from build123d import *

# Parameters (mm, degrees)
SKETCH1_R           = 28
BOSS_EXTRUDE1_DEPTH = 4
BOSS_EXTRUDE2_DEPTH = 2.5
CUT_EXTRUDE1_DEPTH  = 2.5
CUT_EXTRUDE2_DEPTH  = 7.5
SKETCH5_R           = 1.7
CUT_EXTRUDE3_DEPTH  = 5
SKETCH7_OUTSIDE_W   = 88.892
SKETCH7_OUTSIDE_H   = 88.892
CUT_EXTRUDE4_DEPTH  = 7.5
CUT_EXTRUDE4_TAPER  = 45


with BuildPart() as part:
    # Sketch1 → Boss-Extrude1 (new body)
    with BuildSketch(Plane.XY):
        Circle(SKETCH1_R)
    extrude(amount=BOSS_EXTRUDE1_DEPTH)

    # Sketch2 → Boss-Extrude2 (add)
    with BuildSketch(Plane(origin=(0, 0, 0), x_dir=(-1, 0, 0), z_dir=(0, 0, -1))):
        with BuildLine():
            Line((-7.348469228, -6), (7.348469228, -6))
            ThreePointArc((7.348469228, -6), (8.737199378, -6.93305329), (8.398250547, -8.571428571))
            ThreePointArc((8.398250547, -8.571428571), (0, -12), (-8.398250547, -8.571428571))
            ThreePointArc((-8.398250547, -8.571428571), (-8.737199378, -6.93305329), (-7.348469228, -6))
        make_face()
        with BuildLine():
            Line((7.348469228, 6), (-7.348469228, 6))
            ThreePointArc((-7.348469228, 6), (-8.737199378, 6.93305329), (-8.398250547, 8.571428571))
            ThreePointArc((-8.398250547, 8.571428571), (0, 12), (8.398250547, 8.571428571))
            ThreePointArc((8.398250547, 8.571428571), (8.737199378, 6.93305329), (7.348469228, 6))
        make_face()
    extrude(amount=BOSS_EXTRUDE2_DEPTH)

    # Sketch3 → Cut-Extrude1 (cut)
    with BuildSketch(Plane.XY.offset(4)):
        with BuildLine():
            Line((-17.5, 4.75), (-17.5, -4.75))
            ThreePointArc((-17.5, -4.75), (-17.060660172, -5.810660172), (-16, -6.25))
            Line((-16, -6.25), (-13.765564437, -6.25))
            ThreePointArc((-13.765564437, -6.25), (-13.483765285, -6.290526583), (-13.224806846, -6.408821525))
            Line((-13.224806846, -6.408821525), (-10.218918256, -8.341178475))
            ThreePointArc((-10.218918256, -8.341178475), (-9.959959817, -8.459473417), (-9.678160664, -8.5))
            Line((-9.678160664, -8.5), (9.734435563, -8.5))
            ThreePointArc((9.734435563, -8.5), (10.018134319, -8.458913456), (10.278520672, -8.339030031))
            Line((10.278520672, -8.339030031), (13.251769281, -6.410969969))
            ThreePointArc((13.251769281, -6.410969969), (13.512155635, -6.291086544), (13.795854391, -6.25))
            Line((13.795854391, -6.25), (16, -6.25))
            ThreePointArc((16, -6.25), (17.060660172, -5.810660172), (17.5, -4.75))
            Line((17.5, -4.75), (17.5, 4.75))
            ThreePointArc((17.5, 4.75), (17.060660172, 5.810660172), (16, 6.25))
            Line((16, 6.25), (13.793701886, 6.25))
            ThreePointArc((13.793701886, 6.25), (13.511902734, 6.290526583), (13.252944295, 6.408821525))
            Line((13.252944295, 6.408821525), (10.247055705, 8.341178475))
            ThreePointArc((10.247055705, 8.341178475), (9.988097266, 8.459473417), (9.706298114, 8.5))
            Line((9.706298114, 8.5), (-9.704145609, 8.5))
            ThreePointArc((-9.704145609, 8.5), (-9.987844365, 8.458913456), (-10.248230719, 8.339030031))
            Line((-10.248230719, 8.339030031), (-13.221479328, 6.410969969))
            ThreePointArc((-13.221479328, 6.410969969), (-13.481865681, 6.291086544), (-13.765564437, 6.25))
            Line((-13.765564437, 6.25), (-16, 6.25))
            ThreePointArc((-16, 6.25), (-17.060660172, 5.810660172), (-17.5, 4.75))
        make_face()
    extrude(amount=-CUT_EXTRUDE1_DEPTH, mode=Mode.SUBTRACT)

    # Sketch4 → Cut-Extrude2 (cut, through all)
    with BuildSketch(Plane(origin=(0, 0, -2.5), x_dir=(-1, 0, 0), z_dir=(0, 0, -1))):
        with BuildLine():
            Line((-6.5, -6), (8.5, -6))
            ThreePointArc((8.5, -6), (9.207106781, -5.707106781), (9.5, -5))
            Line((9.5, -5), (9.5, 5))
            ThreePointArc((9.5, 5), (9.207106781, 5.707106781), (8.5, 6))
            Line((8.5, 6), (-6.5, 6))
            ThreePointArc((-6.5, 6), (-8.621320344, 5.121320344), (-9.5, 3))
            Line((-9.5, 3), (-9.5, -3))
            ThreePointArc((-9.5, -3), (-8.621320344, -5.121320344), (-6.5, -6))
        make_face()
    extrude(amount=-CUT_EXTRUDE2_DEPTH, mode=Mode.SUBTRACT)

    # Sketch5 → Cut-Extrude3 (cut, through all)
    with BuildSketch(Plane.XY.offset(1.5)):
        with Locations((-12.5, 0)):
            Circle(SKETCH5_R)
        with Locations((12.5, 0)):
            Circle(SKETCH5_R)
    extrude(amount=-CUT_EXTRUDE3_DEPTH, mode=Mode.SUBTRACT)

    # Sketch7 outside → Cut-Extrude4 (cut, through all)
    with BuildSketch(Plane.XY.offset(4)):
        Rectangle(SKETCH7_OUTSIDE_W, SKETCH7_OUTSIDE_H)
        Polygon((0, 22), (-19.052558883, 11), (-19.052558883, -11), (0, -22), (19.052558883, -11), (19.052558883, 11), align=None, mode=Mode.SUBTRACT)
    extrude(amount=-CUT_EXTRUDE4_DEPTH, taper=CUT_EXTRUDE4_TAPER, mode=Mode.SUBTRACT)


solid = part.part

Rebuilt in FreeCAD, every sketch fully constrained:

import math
import FreeCAD as App
import Part
import Sketcher

V = App.Vector
Q = App.Units.Quantity


def add_polygon(sketch, points):
    """Adds a closed chain of lines whose ends are joined by coincident constraints."""
    first, n = sketch.GeometryCount, len(points)
    for a, b in zip(points, points[1:] + points[:1]):
        sketch.addGeometry(Part.LineSegment(App.Vector(*a, 0), App.Vector(*b, 0)), False)
    for i in range(n):
        sketch.addConstraint(Sketcher.Constraint("Coincident", first + i, 2, first + (i + 1) % n, 1))

doc = App.newDocument("Part")
body = doc.addObject("PartDesign::Body", "Body")

# Sketch on XY plane
sketch1 = body.newObject("Sketcher::SketchObject", "Sketch")
sketch1.AttachmentSupport = (doc.getObject("XY_Plane"), [""])
sketch1.MapMode = "FlatFace"
sketch1.addGeometry(Part.Circle(V(0, 0, 0), V(0, 0, 1), 28), False)
sketch1.addConstraint([
    Sketcher.Constraint("Coincident", 0, 3, -1, 1),
    Sketcher.Constraint("Diameter", 0, 56.0),
])
pad1 = body.newObject("PartDesign::Pad", "Pad")
pad1.Profile = sketch1
pad1.Length = 4

# Sketch on XY plane
sketch2 = body.newObject("Sketcher::SketchObject", "Sketch001")
sketch2.AttachmentSupport = (doc.getObject("XY_Plane"), [""])
sketch2.MapMode = "FlatFace"
sketch2.addGeometry([
    Part.LineSegment(V(-7.3, -6, 0), V(7.3, -6, 0)),  # 0
    Part.ArcOfCircle(Part.Circle(V(7.3, -7.5, 0), V(0, 0, 1), 1.5), math.radians(-46), math.radians(90)),  # 1
    Part.ArcOfCircle(Part.Circle(V(0, 0, 0), V(0, 0, 1), 12), math.radians(-134), math.radians(-46)),  # 2
    Part.ArcOfCircle(Part.Circle(V(-7.3, -7.5, 0), V(0, 0, 1), 1.5), math.radians(90), math.radians(226)),  # 3
    Part.LineSegment(V(7.3, 6, 0), V(-7.3, 6, 0)),  # 4
    Part.ArcOfCircle(Part.Circle(V(-7.3, 7.5, 0), V(0, 0, 1), 1.5), math.radians(134), math.radians(270)),  # 5
    Part.ArcOfCircle(Part.Circle(V(0, 0, 0), V(0, 0, 1), 12), math.radians(46), math.radians(134)),  # 6
    Part.ArcOfCircle(Part.Circle(V(7.3, 7.5, 0), V(0, 0, 1), 1.5), math.radians(-90), math.radians(46)),  # 7
], False)
sketch2.addConstraint([
    Sketcher.Constraint("Tangent", 0, 2, 1, 2),
    Sketcher.Constraint("Tangent", 1, 1, 2, 2),
    Sketcher.Constraint("Tangent", 2, 1, 3, 2),
    Sketcher.Constraint("Tangent", 3, 1, 0, 1),
    Sketcher.Constraint("Tangent", 4, 2, 5, 2),
    Sketcher.Constraint("Tangent", 5, 1, 6, 2),
    Sketcher.Constraint("Tangent", 6, 1, 7, 2),
    Sketcher.Constraint("Tangent", 7, 1, 4, 1),
    Sketcher.Constraint("Horizontal", 0),
    Sketcher.Constraint("Horizontal", 4),
    Sketcher.Constraint("Coincident", 2, 3, -1, 1),
    Sketcher.Constraint("Coincident", 6, 3, -1, 1),
    Sketcher.Constraint("Equal", 1, 3),
    Sketcher.Constraint("Equal", 3, 5),
    Sketcher.Constraint("Equal", 2, 6),
    Sketcher.Constraint("Equal", 5, 7),
    Sketcher.Constraint("Vertical", 3, 3, 5, 3),
    Sketcher.Constraint("Radius", 2, 12.0),
    Sketcher.Constraint("Radius", 1, 1.5),
    Sketcher.Constraint("DistanceY", 0, 2, -1, 1, 6.0),
])
pad2 = body.newObject("PartDesign::Pad", "Pad001")
pad2.Profile = sketch2
pad2.Length = 2.5
pad2.Reversed = True

# Sketch on XY plane
sketch3 = body.newObject("Sketcher::SketchObject", "Sketch002")
sketch3.AttachmentSupport = (doc.getObject("XY_Plane"), [""])
sketch3.MapMode = "FlatFace"
sketch3.AttachmentOffset = App.Placement(V(0, 0, 4), App.Rotation())
sketch3.addGeometry([
    Part.LineSegment(V(-17.5, 4.8, 0), V(-17.5, -4.8, 0)),  # 0
    Part.ArcOfCircle(Part.Circle(V(-16, -4.8, 0), V(0, 0, 1), 1.5), math.radians(180), math.radians(270)),  # 1
    Part.LineSegment(V(-16, -6.2, 0), V(-13.8, -6.2, 0)),  # 2
    Part.ArcOfCircle(Part.Circle(V(-13.8, -7.2, 0), V(0, 0, 1), 1), math.radians(57), math.radians(90)),  # 3
    Part.LineSegment(V(-13.2, -6.4, 0), V(-10.2, -8.3, 0)),  # 4
    Part.ArcOfCircle(Part.Circle(V(-9.7, -7.5, 0), V(0, 0, 1), 1), math.radians(-123), math.radians(-90)),  # 5
    Part.LineSegment(V(-9.7, -8.5, 0), V(9.7, -8.5, 0)),  # 6
    Part.ArcOfCircle(Part.Circle(V(9.7, -7.5, 0), V(0, 0, 1), 1), math.radians(-90), math.radians(-57)),  # 7
    Part.LineSegment(V(10.3, -8.3, 0), V(13.3, -6.4, 0)),  # 8
    Part.ArcOfCircle(Part.Circle(V(13.8, -7.2, 0), V(0, 0, 1), 1), math.radians(90), math.radians(123)),  # 9
    Part.LineSegment(V(13.8, -6.2, 0), V(16, -6.2, 0)),  # 10
    Part.ArcOfCircle(Part.Circle(V(16, -4.8, 0), V(0, 0, 1), 1.5), math.radians(-90), math.radians(0)),  # 11
    Part.LineSegment(V(17.5, -4.8, 0), V(17.5, 4.8, 0)),  # 12
    Part.ArcOfCircle(Part.Circle(V(16, 4.8, 0), V(0, 0, 1), 1.5), math.radians(0), math.radians(90)),  # 13
    Part.LineSegment(V(16, 6.2, 0), V(13.8, 6.2, 0)),  # 14
    Part.ArcOfCircle(Part.Circle(V(13.8, 7.2, 0), V(0, 0, 1), 1), math.radians(-123), math.radians(-90)),  # 15
    Part.LineSegment(V(13.3, 6.4, 0), V(10.2, 8.3, 0)),  # 16
    Part.ArcOfCircle(Part.Circle(V(9.7, 7.5, 0), V(0, 0, 1), 1), math.radians(57), math.radians(90)),  # 17
    Part.LineSegment(V(9.7, 8.5, 0), V(-9.7, 8.5, 0)),  # 18
    Part.ArcOfCircle(Part.Circle(V(-9.7, 7.5, 0), V(0, 0, 1), 1), math.radians(90), math.radians(123)),  # 19
    Part.LineSegment(V(-10.2, 8.3, 0), V(-13.2, 6.4, 0)),  # 20
    Part.ArcOfCircle(Part.Circle(V(-13.8, 7.2, 0), V(0, 0, 1), 1), math.radians(-90), math.radians(-57)),  # 21
    Part.LineSegment(V(-13.8, 6.2, 0), V(-16, 6.2, 0)),  # 22
    Part.ArcOfCircle(Part.Circle(V(-16, 4.8, 0), V(0, 0, 1), 1.5), math.radians(90), math.radians(180)),  # 23
], False)
sketch3.addConstraint([
    Sketcher.Constraint("Tangent", 0, 2, 1, 1),
    Sketcher.Constraint("Tangent", 1, 2, 2, 1),
    Sketcher.Constraint("Tangent", 2, 2, 3, 2),
    Sketcher.Constraint("Tangent", 3, 1, 4, 1),
    Sketcher.Constraint("Tangent", 4, 2, 5, 1),
    Sketcher.Constraint("Tangent", 5, 2, 6, 1),
    Sketcher.Constraint("Tangent", 6, 2, 7, 1),
    Sketcher.Constraint("Tangent", 7, 2, 8, 1),
    Sketcher.Constraint("Tangent", 8, 2, 9, 2),
    Sketcher.Constraint("Tangent", 9, 1, 10, 1),
    Sketcher.Constraint("Tangent", 10, 2, 11, 1),
    Sketcher.Constraint("Tangent", 11, 2, 12, 1),
    Sketcher.Constraint("Tangent", 12, 2, 13, 1),
    Sketcher.Constraint("Tangent", 13, 2, 14, 1),
    Sketcher.Constraint("Tangent", 14, 2, 15, 2),
    Sketcher.Constraint("Tangent", 15, 1, 16, 1),
    Sketcher.Constraint("Tangent", 16, 2, 17, 1),
    Sketcher.Constraint("Tangent", 17, 2, 18, 1),
    Sketcher.Constraint("Tangent", 18, 2, 19, 1),
    Sketcher.Constraint("Tangent", 19, 2, 20, 1),
    Sketcher.Constraint("Tangent", 20, 2, 21, 2),
    Sketcher.Constraint("Tangent", 21, 1, 22, 1),
    Sketcher.Constraint("Tangent", 22, 2, 23, 1),
    Sketcher.Constraint("Tangent", 23, 2, 0, 1),
    Sketcher.Constraint("Vertical", 0),
    Sketcher.Constraint("Horizontal", 2),
    Sketcher.Constraint("Horizontal", 6),
    Sketcher.Constraint("Horizontal", 10),
    Sketcher.Constraint("Vertical", 12),
    Sketcher.Constraint("Horizontal", 14),
    Sketcher.Constraint("Horizontal", 18),
    Sketcher.Constraint("Horizontal", 22),
    Sketcher.Constraint("Equal", 3, 5),
    Sketcher.Constraint("Equal", 5, 7),
    Sketcher.Constraint("Equal", 7, 9),
    Sketcher.Constraint("Equal", 1, 11),
    Sketcher.Constraint("Equal", 11, 13),
    Sketcher.Constraint("Equal", 9, 15),
    Sketcher.Constraint("Equal", 15, 17),
    Sketcher.Constraint("Equal", 17, 19),
    Sketcher.Constraint("Equal", 19, 21),
    Sketcher.Constraint("Equal", 13, 23),
    Sketcher.Constraint("Symmetric", 1, 3, 13, 3, -1, 1),
    Sketcher.Constraint("Symmetric", 3, 3, 21, 3, -1),
    Sketcher.Constraint("Parallel", 4, 16),
    Sketcher.Constraint("Parallel", 8, 20),
    Sketcher.Constraint("Horizontal", 3, 3, 9, 3),
    Sketcher.Constraint("Equal", 4, 16),
    Sketcher.Constraint("Radius", 3, 1.0),
    Sketcher.Constraint("Radius", 1, 1.5),
    Sketcher.Constraint("DistanceY", 0, 2, 0, 1, 9.5),
    Sketcher.Constraint("DistanceX", 1, 3, -1, 1, 16.0),
    Sketcher.Constraint("DistanceY", 7, 3, 17, 3, 15.0),
    Sketcher.Constraint("DistanceX", 3, 3, 7, 3, 23.5),
    Sketcher.Constraint("DistanceX", 14, 2, 14, 1, 2.206298),
    Sketcher.Constraint("DistanceX", -1, 1, 17, 3, 9.706298),
    Sketcher.Constraint("DistanceX", 2, 1, 2, 2, 2.234436),
    Sketcher.Constraint("DistanceX", 10, 1, 10, 2, 2.204146),
])
pocket1 = body.newObject("PartDesign::Pocket", "Pocket")
pocket1.Profile = sketch3
pocket1.Length = 2.5

# Sketch on XY plane
sketch4 = body.newObject("Sketcher::SketchObject", "Sketch003")
sketch4.AttachmentSupport = (doc.getObject("XY_Plane"), [""])
sketch4.MapMode = "FlatFace"
sketch4.AttachmentOffset = App.Placement(V(0, 0, -2.5), App.Rotation())
sketch4.addGeometry([
    Part.LineSegment(V(6.5, -6, 0), V(-8.5, -6, 0)),  # 0
    Part.ArcOfCircle(Part.Circle(V(-8.5, -5, 0), V(0, 0, 1), 1), math.radians(-180), math.radians(-90)),  # 1
    Part.LineSegment(V(-9.5, -5, 0), V(-9.5, 5, 0)),  # 2
    Part.ArcOfCircle(Part.Circle(V(-8.5, 5, 0), V(0, 0, 1), 1), math.radians(90), math.radians(180)),  # 3
    Part.LineSegment(V(-8.5, 6, 0), V(6.5, 6, 0)),  # 4
    Part.ArcOfCircle(Part.Circle(V(6.5, 3, 0), V(0, 0, 1), 3), math.radians(0), math.radians(90)),  # 5
    Part.LineSegment(V(9.5, 3, 0), V(9.5, -3, 0)),  # 6
    Part.ArcOfCircle(Part.Circle(V(6.5, -3, 0), V(0, 0, 1), 3), math.radians(-90), math.radians(0)),  # 7
], False)
sketch4.addConstraint([
    Sketcher.Constraint("Tangent", 0, 2, 1, 2),
    Sketcher.Constraint("Tangent", 1, 1, 2, 1),
    Sketcher.Constraint("Tangent", 2, 2, 3, 2),
    Sketcher.Constraint("Tangent", 3, 1, 4, 1),
    Sketcher.Constraint("Tangent", 4, 2, 5, 2),
    Sketcher.Constraint("Tangent", 5, 1, 6, 1),
    Sketcher.Constraint("Tangent", 6, 2, 7, 2),
    Sketcher.Constraint("Tangent", 7, 1, 0, 1),
    Sketcher.Constraint("Horizontal", 0),
    Sketcher.Constraint("Vertical", 2),
    Sketcher.Constraint("Horizontal", 4),
    Sketcher.Constraint("Vertical", 6),
    Sketcher.Constraint("Equal", 1, 3),
    Sketcher.Constraint("Equal", 5, 7),
    Sketcher.Constraint("Radius", 1, 1.0),
    Sketcher.Constraint("Radius", 5, 3.0),
    Sketcher.Constraint("DistanceX", 0, 2, 0, 1, 15.0),
    Sketcher.Constraint("DistanceY", 2, 1, 2, 2, 10.0),
    Sketcher.Constraint("DistanceY", 1, 3, -1, 1, 5.0),
    Sketcher.Constraint("DistanceX", 1, 3, -1, 1, 8.5),
])
pocket2 = body.newObject("PartDesign::Pocket", "Pocket001")
pocket2.Profile = sketch4
pocket2.Type = "ThroughAll"
pocket2.Reversed = True

# Sketch on XY plane
sketch5 = body.newObject("Sketcher::SketchObject", "Sketch004")
sketch5.AttachmentSupport = (doc.getObject("XY_Plane"), [""])
sketch5.MapMode = "FlatFace"
sketch5.AttachmentOffset = App.Placement(V(0, 0, 1.5), App.Rotation())
sketch5.addGeometry([
    Part.Circle(V(-12.5, 0, 0), V(0, 0, 1), 1.7),
    Part.Circle(V(12.5, 0, 0), V(0, 0, 1), 1.7),
], False)
sketch5.addConstraint([
    Sketcher.Constraint("Equal", 0, 1),
    Sketcher.Constraint("Symmetric", 0, 3, 1, 3, -1, 1),
    Sketcher.Constraint("PointOnObject", 0, 3, -1),
    Sketcher.Constraint("Diameter", 0, 3.4),
    Sketcher.Constraint("DistanceX", 0, 3, 1, 3, 25.0),
])
pocket3 = body.newObject("PartDesign::Pocket", "Pocket002")
pocket3.Profile = sketch5
pocket3.Type = "ThroughAll"

# Sketch on XY plane
sketch6 = body.newObject("Sketcher::SketchObject", "Sketch005")
sketch6.AttachmentSupport = (doc.getObject("XY_Plane"), [""])
sketch6.MapMode = "FlatFace"
sketch6.AttachmentOffset = App.Placement(V(0, 0, 4), App.Rotation())
add_polygon(sketch6, [(-44, 44), (-44, -44), (44, -44), (44, 44)])  # lines 0-3
add_polygon(sketch6, [(-19, 11), (0, 22), (19, 11), (19, -11), (0, -22), (-19, -11)])  # lines 4-9
sketch6.addConstraint([
    Sketcher.Constraint("Vertical", 0),
    Sketcher.Constraint("Horizontal", 1),
    Sketcher.Constraint("Vertical", 2),
    Sketcher.Constraint("Horizontal", 3),
    Sketcher.Constraint("Vertical", 6),
    Sketcher.Constraint("Vertical", 9),
    Sketcher.Constraint("Symmetric", 0, 2, 2, 2, -1, 1),
    Sketcher.Constraint("Symmetric", 4, 2, 7, 2, -1, 1),
    Sketcher.Constraint("Symmetric", 5, 2, 8, 2, -1, 1),
    Sketcher.Constraint("PointOnObject", 4, 2, -2),
    Sketcher.Constraint("Parallel", 4, 7),
    Sketcher.Constraint("Horizontal", 6, 2, 8, 2),
    Sketcher.Constraint("Equal", 3, 0),
    Sketcher.Constraint("DistanceY", 6, 2, 6, 1, 22.0),
    Sketcher.Constraint("Angle", 4, Q("30 deg")),
    Sketcher.Constraint("Distance", 4, 22.0),
    Sketcher.Constraint("DistanceX", 1, 1, 1, 2, 88.892),
])
pocket4 = body.newObject("PartDesign::Pocket", "Pocket003")
pocket4.Profile = sketch6
pocket4.Length = 7.5
pocket4.TaperAngle = 45

doc.recompute()
